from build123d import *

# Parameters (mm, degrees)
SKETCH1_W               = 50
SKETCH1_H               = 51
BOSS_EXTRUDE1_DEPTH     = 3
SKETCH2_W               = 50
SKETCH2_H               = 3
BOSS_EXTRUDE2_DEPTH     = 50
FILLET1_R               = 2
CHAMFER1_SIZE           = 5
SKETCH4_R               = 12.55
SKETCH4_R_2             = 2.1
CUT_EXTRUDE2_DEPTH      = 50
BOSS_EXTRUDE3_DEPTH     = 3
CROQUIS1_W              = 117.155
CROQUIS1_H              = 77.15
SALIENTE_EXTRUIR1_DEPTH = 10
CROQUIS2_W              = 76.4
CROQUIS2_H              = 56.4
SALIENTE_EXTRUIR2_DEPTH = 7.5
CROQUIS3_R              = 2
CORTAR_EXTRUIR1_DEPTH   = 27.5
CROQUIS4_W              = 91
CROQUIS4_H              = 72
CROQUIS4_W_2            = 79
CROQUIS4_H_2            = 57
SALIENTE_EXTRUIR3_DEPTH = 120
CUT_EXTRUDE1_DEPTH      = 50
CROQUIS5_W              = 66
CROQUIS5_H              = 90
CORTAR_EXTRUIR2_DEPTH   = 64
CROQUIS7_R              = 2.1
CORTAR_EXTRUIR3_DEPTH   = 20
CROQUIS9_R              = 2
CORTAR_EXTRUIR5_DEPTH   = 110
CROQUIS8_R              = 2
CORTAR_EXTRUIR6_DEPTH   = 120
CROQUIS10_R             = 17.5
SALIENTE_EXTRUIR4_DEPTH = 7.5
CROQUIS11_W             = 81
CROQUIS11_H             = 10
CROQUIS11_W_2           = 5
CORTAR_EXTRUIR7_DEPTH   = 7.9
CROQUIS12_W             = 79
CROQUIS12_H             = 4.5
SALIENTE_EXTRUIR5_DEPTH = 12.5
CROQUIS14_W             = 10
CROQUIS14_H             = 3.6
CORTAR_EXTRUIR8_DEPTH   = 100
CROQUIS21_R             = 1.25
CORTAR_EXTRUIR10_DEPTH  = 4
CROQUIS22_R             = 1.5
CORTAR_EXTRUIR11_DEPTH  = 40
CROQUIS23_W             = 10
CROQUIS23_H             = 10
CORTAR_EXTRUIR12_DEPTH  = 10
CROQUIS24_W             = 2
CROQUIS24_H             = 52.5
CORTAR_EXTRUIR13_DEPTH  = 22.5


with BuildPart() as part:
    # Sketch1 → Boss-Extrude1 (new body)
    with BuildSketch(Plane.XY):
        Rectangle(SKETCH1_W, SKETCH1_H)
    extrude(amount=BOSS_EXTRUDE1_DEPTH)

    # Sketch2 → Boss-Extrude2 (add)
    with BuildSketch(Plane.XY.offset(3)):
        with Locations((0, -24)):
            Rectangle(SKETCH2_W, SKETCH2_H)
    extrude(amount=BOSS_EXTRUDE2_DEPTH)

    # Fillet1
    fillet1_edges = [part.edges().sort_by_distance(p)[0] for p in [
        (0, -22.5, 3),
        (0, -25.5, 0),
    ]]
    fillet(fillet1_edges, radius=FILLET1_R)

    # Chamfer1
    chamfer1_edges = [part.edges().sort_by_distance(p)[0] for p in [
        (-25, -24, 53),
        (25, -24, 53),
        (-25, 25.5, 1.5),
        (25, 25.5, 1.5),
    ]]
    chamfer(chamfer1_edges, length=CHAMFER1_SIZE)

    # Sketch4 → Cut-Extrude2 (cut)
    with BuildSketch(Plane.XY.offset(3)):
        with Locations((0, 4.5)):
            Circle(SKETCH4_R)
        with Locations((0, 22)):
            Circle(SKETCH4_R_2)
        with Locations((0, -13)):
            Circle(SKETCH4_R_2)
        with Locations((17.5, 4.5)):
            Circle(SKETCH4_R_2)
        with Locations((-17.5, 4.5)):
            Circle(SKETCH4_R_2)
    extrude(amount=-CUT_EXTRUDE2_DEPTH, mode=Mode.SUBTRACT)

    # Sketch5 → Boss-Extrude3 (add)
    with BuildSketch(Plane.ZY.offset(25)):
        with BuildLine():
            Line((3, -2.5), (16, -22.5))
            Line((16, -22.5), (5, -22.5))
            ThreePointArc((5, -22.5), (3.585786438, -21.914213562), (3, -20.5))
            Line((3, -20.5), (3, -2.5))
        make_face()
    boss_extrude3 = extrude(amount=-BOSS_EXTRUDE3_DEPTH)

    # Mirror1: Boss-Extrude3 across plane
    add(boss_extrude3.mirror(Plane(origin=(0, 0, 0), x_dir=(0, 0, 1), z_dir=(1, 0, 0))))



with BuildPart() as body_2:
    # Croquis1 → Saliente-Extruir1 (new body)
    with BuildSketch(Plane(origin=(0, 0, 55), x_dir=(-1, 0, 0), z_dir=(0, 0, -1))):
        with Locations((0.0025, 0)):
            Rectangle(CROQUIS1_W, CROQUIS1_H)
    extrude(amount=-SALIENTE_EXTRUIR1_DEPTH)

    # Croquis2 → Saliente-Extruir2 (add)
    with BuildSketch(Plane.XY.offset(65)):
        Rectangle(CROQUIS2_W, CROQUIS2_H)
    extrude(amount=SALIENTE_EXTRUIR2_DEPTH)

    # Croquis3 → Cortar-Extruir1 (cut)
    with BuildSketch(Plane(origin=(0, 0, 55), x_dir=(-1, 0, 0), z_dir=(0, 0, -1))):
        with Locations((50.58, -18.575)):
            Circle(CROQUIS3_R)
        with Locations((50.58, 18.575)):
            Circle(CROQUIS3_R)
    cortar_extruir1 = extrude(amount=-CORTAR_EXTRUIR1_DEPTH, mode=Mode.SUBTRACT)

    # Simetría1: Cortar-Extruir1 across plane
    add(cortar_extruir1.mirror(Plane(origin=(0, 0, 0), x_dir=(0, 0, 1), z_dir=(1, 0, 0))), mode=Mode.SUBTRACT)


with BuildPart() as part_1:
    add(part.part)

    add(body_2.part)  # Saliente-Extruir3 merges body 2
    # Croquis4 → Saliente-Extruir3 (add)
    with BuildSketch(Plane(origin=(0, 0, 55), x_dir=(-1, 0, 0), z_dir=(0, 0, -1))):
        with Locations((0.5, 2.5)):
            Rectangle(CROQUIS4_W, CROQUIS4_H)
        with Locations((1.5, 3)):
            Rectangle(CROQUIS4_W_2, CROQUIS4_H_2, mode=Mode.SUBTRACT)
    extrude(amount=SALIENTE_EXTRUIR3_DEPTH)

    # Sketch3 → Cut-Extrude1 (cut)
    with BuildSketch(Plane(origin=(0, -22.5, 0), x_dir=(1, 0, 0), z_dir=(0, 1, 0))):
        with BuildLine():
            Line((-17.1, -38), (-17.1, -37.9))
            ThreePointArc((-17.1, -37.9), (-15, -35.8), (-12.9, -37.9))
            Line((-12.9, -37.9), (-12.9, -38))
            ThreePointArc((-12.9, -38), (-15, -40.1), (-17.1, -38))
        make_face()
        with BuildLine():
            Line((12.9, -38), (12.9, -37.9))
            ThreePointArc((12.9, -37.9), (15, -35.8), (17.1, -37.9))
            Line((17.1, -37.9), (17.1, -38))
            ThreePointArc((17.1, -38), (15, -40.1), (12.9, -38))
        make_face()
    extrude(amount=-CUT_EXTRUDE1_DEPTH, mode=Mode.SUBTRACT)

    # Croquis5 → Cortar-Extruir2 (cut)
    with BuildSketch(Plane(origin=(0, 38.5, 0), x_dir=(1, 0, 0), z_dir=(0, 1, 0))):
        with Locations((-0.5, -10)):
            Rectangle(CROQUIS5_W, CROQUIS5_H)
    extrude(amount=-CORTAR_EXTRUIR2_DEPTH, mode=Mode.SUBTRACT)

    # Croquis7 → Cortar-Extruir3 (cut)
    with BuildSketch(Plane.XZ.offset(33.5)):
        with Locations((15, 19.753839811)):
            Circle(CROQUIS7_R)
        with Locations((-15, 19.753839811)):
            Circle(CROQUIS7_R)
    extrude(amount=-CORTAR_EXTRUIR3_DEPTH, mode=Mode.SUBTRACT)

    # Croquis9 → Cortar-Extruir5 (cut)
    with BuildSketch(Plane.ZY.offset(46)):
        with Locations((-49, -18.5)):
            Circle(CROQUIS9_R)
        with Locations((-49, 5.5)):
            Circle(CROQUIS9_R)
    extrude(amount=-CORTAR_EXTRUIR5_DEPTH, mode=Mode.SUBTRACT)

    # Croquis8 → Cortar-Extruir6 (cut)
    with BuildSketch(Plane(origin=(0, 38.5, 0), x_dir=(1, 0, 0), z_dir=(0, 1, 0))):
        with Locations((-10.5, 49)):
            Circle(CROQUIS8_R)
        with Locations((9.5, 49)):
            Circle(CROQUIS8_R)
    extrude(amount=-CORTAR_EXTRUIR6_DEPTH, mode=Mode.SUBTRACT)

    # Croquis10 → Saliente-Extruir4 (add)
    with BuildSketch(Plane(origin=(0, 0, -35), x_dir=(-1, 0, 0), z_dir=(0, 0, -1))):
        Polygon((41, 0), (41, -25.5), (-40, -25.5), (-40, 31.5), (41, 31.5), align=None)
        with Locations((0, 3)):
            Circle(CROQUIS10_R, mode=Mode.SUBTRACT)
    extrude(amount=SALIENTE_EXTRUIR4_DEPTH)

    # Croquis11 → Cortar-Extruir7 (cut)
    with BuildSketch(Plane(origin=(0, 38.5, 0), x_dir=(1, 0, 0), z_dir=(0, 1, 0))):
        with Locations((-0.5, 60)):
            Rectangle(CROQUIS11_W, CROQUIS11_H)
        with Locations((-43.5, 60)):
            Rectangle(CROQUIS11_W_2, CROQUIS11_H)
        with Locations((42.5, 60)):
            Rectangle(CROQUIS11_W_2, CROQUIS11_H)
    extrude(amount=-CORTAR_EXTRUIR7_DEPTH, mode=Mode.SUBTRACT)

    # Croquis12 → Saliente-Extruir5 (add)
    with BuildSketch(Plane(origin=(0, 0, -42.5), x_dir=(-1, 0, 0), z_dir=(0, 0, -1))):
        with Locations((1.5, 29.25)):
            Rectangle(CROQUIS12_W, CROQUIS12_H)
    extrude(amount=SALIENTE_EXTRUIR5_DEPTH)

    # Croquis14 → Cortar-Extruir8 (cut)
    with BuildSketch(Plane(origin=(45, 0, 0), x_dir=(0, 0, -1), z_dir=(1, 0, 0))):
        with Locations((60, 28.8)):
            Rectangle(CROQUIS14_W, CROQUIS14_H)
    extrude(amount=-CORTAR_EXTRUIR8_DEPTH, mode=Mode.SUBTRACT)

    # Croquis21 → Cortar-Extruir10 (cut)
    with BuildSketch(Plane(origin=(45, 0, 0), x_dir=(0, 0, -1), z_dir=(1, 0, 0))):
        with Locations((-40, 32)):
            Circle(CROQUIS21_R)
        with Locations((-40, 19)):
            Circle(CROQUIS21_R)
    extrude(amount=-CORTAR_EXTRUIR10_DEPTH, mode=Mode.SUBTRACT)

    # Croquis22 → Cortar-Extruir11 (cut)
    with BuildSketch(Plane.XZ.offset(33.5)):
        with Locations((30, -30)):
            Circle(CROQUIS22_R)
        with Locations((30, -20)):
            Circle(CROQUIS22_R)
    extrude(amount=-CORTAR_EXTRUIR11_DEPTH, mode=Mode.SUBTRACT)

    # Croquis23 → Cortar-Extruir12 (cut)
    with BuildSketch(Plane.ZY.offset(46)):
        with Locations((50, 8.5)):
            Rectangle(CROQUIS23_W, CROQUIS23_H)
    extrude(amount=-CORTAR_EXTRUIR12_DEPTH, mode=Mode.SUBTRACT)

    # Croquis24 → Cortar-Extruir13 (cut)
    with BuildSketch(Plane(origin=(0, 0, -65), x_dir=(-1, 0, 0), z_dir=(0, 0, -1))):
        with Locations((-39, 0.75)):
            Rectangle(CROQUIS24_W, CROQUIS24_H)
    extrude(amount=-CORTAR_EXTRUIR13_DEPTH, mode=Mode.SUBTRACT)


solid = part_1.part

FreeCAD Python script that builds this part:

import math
import FreeCAD as App
import Part
import Sketcher
Q = App.Units.Quantity


def edges_at(feature, points):
    """Names of the edges that pass closest to the given points."""
    edges = feature.Shape.Edges
    near = lambda p: min(range(len(edges)), key=lambda i: edges[i].distToShape(Part.Vertex(*p))[0])
    return sorted({f"Edge{near(p) + 1}" for p in points})


def add_polygon(sketch, points):
    """Adds a closed chain of lines whose ends are joined by coincident constraints."""
    first, n = sketch.GeometryCount, len(points)
    for a, b in zip(points, points[1:] + points[:1]):
        sketch.addGeometry(Part.LineSegment(App.Vector(*a, 0), App.Vector(*b, 0)), False)
    for i in range(n):
        sketch.addConstraint(Sketcher.Constraint("Coincident", first + i, 2, first + (i + 1) % n, 1))

doc = App.newDocument("Part")
body = doc.addObject("PartDesign::Body", "Body")

sketch1 = body.newObject("Sketcher::SketchObject", "Sketch")
sketch1.AttachmentSupport = (doc.getObject("XY_Plane"), [""])
sketch1.MapMode = "FlatFace"
add_polygon(sketch1, [(-25, 26), (-25, -26), (25, -26), (25, 26)])
sketch1.addConstraint([
    Sketcher.Constraint("Vertical", 0),
    Sketcher.Constraint("Horizontal", 1),
    Sketcher.Constraint("Vertical", 2),
    Sketcher.Constraint("Horizontal", 3),
    Sketcher.Constraint("Symmetric", 0, 2, 2, 2, -1, 1),
    Sketcher.Constraint("DistanceX", 1, 1, 1, 2, Q("50 mm")),
    Sketcher.Constraint("DistanceY", 0, 2, 0, 1, Q("51 mm")),
])
pad1 = body.newObject("PartDesign::Pad", "Pad")
pad1.Profile = sketch1
pad1.Length = 3

sketch2 = body.newObject("Sketcher::SketchObject", "Sketch001")
sketch2.AttachmentSupport = (doc.getObject("XY_Plane"), [""])
sketch2.MapMode = "FlatFace"
sketch2.AttachmentOffset = App.Placement(App.Vector(0, 0, 3), App.Rotation())
add_polygon(sketch2, [(-25, -22.5), (-25, -25.5), (25, -25.5), (25, -22.5)])
sketch2.addConstraint([
    Sketcher.Constraint("Vertical", 0),
    Sketcher.Constraint("Horizontal", 1),
    Sketcher.Constraint("Vertical", 2),
    Sketcher.Constraint("Horizontal", 3),
    Sketcher.Constraint("DistanceX", 1, 1, 1, 2, Q("50 mm")),
    Sketcher.Constraint("DistanceY", 0, 2, 0, 1, Q("3 mm")),
    Sketcher.Constraint("DistanceX", 0, 2, -1, 1, Q("25 mm")),
    Sketcher.Constraint("DistanceY", 0, 2, -1, 1, Q("25.5 mm")),
])
pad2 = body.newObject("PartDesign::Pad", "Pad001")
pad2.Profile = sketch2
pad2.Length = 50
doc.recompute()

fillet = body.newObject("PartDesign::Fillet", "Fillet")
fillet.Base = (pad2, edges_at(pad2, [(0, -22.5, 3), (0, -25.5, 0)]))
fillet.Radius = 2
doc.recompute()

chamfer = body.newObject("PartDesign::Chamfer", "Chamfer")
chamfer.Base = (fillet, edges_at(fillet, [
    (-25, -24, 53),
    (25, -24, 53),
    (-25, 25.5, 1.5),
    (25, 25.5, 1.5),
]))
chamfer.Size = 5

sketch3 = body.newObject("Sketcher::SketchObject", "Sketch002")
sketch3.AttachmentSupport = (doc.getObject("XY_Plane"), [""])
sketch3.MapMode = "FlatFace"
sketch3.AttachmentOffset = App.Placement(App.Vector(0, 0, 3), App.Rotation())
sketch3.addGeometry([
    Part.Circle(App.Vector(0, 4.5, 0), App.Vector(0, 0, 1), 12.6),
    Part.Circle(App.Vector(0, 22, 0), App.Vector(0, 0, 1), 2.1),
    Part.Circle(App.Vector(0, -13, 0), App.Vector(0, 0, 1), 2.1),
    Part.Circle(App.Vector(17.5, 4.5, 0), App.Vector(0, 0, 1), 2.1),
    Part.Circle(App.Vector(-17.5, 4.5, 0), App.Vector(0, 0, 1), 2.1),
], False)
sketch3.addConstraint([
    Sketcher.Constraint("Equal", 1, 2),
    Sketcher.Constraint("Equal", 2, 3),
    Sketcher.Constraint("Equal", 3, 4),
    Sketcher.Constraint("Symmetric", 3, 3, 4, 3, -2),
    Sketcher.Constraint("PointOnObject", 0, 3, -2),
    Sketcher.Constraint("PointOnObject", 1, 3, -2),
    Sketcher.Constraint("PointOnObject", 2, 3, -2),
    Sketcher.Constraint("Horizontal", 0, 3, 3, 3),
    Sketcher.Constraint("Diameter", 0, Q("25.1 mm")),
    Sketcher.Constraint("Diameter", 1, Q("4.2 mm")),
    Sketcher.Constraint("DistanceY", -1, 1, 1, 3, Q("22 mm")),
    Sketcher.Constraint("DistanceY", 2, 3, -1, 1, Q("13 mm")),
    Sketcher.Constraint("DistanceX", 4, 3, 3, 3, Q("35 mm")),
    Sketcher.Constraint("DistanceY", -1, 1, 0, 3, Q("4.5 mm")),
])
pocket1 = body.newObject("PartDesign::Pocket", "Pocket")
pocket1.Profile = sketch3
pocket1.Length = 50

sketch4 = body.newObject("Sketcher::SketchObject", "Sketch003")
sketch4.AttachmentSupport = (doc.getObject("YZ_Plane"), [""])
sketch4.MapMode = "FlatFace"
sketch4.AttachmentOffset = App.Placement(App.Vector(0, 0, -25), App.Rotation())
sketch4.addGeometry([
    Part.LineSegment(App.Vector(-22.5, 16, 0), App.Vector(-2.5, 3, 0)),
    Part.LineSegment(App.Vector(-2.5, 3, 0), App.Vector(-20.5, 3, 0)),
    Part.ArcOfCircle(Part.Circle(App.Vector(-20.5, 5, 0), App.Vector(0, 0, 1), 2), math.radians(-180), math.radians(-90)),
    Part.LineSegment(App.Vector(-22.5, 5, 0), App.Vector(-22.5, 16, 0)),
], False)
sketch4.addConstraint([
    Sketcher.Constraint("Coincident", 0, 2, 1, 1),
    Sketcher.Constraint("Tangent", 1, 2, 2, 2),
    Sketcher.Constraint("Tangent", 2, 1, 3, 1),
    Sketcher.Constraint("Coincident", 3, 2, 0, 1),
    Sketcher.Constraint("Horizontal", 1),
    Sketcher.Constraint("Vertical", 3),
    Sketcher.Constraint("Radius", 2, Q("2 mm")),
    Sketcher.Constraint("DistanceX", 1, 2, 1, 1, Q("18 mm")),
    Sketcher.Constraint("DistanceY", 3, 1, 3, 2, Q("11 mm")),
    Sketcher.Constraint("DistanceY", -1, 1, 2, 3, Q("5 mm")),
    Sketcher.Constraint("DistanceX", 2, 3, -1, 1, Q("20.5 mm")),
])
pad3 = body.newObject("PartDesign::Pad", "Pad002")
pad3.Profile = sketch4
pad3.Length = 3
doc.recompute()

mirrored = body.newObject("PartDesign::Mirrored", "Mirrored")
mirrored.Originals = [pad3]
mirrored.MirrorPlane = (doc.getObject("YZ_Plane"), [""])
body.Tip = mirrored
body2 = doc.addObject("PartDesign::Body", "Body001")

sketch5 = body2.newObject("Sketcher::SketchObject", "Sketch004")
sketch5.AttachmentSupport = (doc.getObject("XY_Plane001"), [""])
sketch5.MapMode = "FlatFace"
sketch5.AttachmentOffset = App.Placement(App.Vector(0, 0, 55), App.Rotation())
add_polygon(sketch5, [(59, 39), (59, -39), (-59, -39), (-59, 39)])
sketch5.addConstraint([
    Sketcher.Constraint("Vertical", 0),
    Sketcher.Constraint("Horizontal", 1),
    Sketcher.Constraint("Vertical", 2),
    Sketcher.Constraint("Horizontal", 3),
    Sketcher.Constraint("DistanceY", 0, 2, 0, 1, Q("77.15 mm")),
    Sketcher.Constraint("DistanceX", 1, 2, 1, 1, Q("117.155 mm")),
    Sketcher.Constraint("DistanceX", 1, 2, -1, 1, Q("58.58 mm")),
    Sketcher.Constraint("DistanceY", 0, 2, -1, 1, Q("38.575 mm")),
])
pad4 = body2.newObject("PartDesign::Pad", "Pad003")
pad4.Profile = sketch5
pad4.Length = 10

sketch6 = body2.newObject("Sketcher::SketchObject", "Sketch005")
sketch6.AttachmentSupport = (doc.getObject("XY_Plane001"), [""])
sketch6.MapMode = "FlatFace"
sketch6.AttachmentOffset = App.Placement(App.Vector(0, 0, 65), App.Rotation())
add_polygon(sketch6, [(-38, 28), (-38, -28), (38, -28), (38, 28)])
sketch6.addConstraint([
    Sketcher.Constraint("Vertical", 0),
    Sketcher.Constraint("Horizontal", 1),
    Sketcher.Constraint("Vertical", 2),
    Sketcher.Constraint("Horizontal", 3),
    Sketcher.Constraint("Symmetric", 0, 2, 2, 2, -1, 1),
    Sketcher.Constraint("DistanceX", 1, 1, 1, 2, Q("76.4 mm")),
    Sketcher.Constraint("DistanceY", 0, 2, 0, 1, Q("56.4 mm")),
])
pad5 = body2.newObject("PartDesign::Pad", "Pad004")
pad5.Profile = sketch6
pad5.Length = 7.5

sketch7 = body2.newObject("Sketcher::SketchObject", "Sketch006")
sketch7.AttachmentSupport = (doc.getObject("XY_Plane001"), [""])
sketch7.MapMode = "FlatFace"
sketch7.AttachmentOffset = App.Placement(App.Vector(0, 0, 55), App.Rotation())
sketch7.addGeometry([
    Part.Circle(App.Vector(-50.6, -18.6, 0), App.Vector(0, 0, 1), 2),
    Part.Circle(App.Vector(-50.6, 18.6, 0), App.Vector(0, 0, 1), 2),
], False)
sketch7.addConstraint([
    Sketcher.Constraint("Equal", 0, 1),
    Sketcher.Constraint("Symmetric", 0, 3, 1, 3, -1),
    Sketcher.Constraint("Diameter", 0, Q("4 mm")),
    Sketcher.Constraint("DistanceX", 0, 3, -1, 1, Q("50.58 mm")),
    Sketcher.Constraint("DistanceY", 0, 3, 1, 3, Q("37.15 mm")),
])
pocket2 = body2.newObject("PartDesign::Pocket", "Pocket001")
pocket2.Profile = sketch7
pocket2.Length = 27.5
pocket2.Reversed = True
doc.recompute()

mirrored2 = body2.newObject("PartDesign::Mirrored", "Mirrored001")
mirrored2.Originals = [pocket2]
mirrored2.MirrorPlane = (doc.getObject("YZ_Plane001"), [""])
body2.Tip = mirrored2
body.AllowCompound = True
doc.recompute()

boolean = body.newObject("PartDesign::Boolean", "Boolean")
boolean.Type = "Fuse"
boolean.addObjects([body2])

sketch8 = body.newObject("Sketcher::SketchObject", "Sketch007")
sketch8.AttachmentSupport = (doc.getObject("XY_Plane"), [""])
sketch8.MapMode = "FlatFace"
sketch8.AttachmentOffset = App.Placement(App.Vector(0, 0, 55), App.Rotation())
add_polygon(sketch8, [(45, 38), (45, -34), (-46, -34), (-46, 38)])
add_polygon(sketch8, [(-41, -26), (38, -26), (38, 32), (-41, 32)])
sketch8.addConstraint([
    Sketcher.Constraint("Vertical", 0),
    Sketcher.Constraint("Horizontal", 1),
    Sketcher.Constraint("Vertical", 2),
    Sketcher.Constraint("Horizontal", 3),
    Sketcher.Constraint("Horizontal", 4),
    Sketcher.Constraint("Vertical", 5),
    Sketcher.Constraint("Horizontal", 6),
    Sketcher.Constraint("Vertical", 7),
    Sketcher.Constraint("DistanceX", 1, 2, 1, 1, Q("91 mm")),
    Sketcher.Constraint("DistanceX", 4, 1, 4, 2, Q("79 mm")),
    Sketcher.Constraint("DistanceY", 0, 2, 0, 1, Q("72 mm")),
    Sketcher.Constraint("DistanceY", 5, 1, 5, 2, Q("57 mm")),
    Sketcher.Constraint("DistanceX", -1, 1, 0, 2, Q("45 mm")),
    Sketcher.Constraint("DistanceX", -1, 1, 4, 2, Q("38 mm")),
    Sketcher.Constraint("DistanceY", 0, 2, 4, 2, Q("8 mm")),
    Sketcher.Constraint("DistanceY", 0, 2, -1, 1, Q("33.5 mm")),
])
pad6 = body.newObject("PartDesign::Pad", "Pad005")
pad6.Profile = sketch8
pad6.Length = 120
pad6.Reversed = True

sketch9 = body.newObject("Sketcher::SketchObject", "Sketch008")
sketch9.AttachmentSupport = (doc.getObject("XZ_Plane"), [""])
sketch9.MapMode = "FlatFace"
sketch9.AttachmentOffset = App.Placement(App.Vector(0, 0, 22.5), App.Rotation())
sketch9.addGeometry([
    Part.LineSegment(App.Vector(-17.1, 37.9, 0), App.Vector(-17.1, 38, 0)),
    Part.ArcOfCircle(Part.Circle(App.Vector(-15, 38, 0), App.Vector(0, 0, 1), 2.1), math.radians(0), math.radians(180)),
    Part.LineSegment(App.Vector(-12.9, 38, 0), App.Vector(-12.9, 37.9, 0)),
    Part.ArcOfCircle(Part.Circle(App.Vector(-15, 37.9, 0), App.Vector(0, 0, 1), 2.1), math.radians(180), math.radians(360)),
    Part.LineSegment(App.Vector(12.9, 37.9, 0), App.Vector(12.9, 38, 0)),
    Part.ArcOfCircle(Part.Circle(App.Vector(15, 38, 0), App.Vector(0, 0, 1), 2.1), math.radians(0), math.radians(180)),
    Part.LineSegment(App.Vector(17.1, 38, 0), App.Vector(17.1, 37.9, 0)),
    Part.ArcOfCircle(Part.Circle(App.Vector(15, 37.9, 0), App.Vector(0, 0, 1), 2.1), math.radians(180), math.radians(360)),
], False)
sketch9.addConstraint([
    Sketcher.Constraint("Tangent", 0, 2, 1, 2),
    Sketcher.Constraint("Tangent", 1, 1, 2, 1),
    Sketcher.Constraint("Tangent", 2, 2, 3, 2),
    Sketcher.Constraint("Tangent", 3, 1, 0, 1),
    Sketcher.Constraint("Tangent", 4, 2, 5, 2),
    Sketcher.Constraint("Tangent", 5, 1, 6, 1),
    Sketcher.Constraint("Tangent", 6, 2, 7, 2),
    Sketcher.Constraint("Tangent", 7, 1, 4, 1),
    Sketcher.Constraint("Vertical", 0),
    Sketcher.Constraint("Vertical", 2),
    Sketcher.Constraint("Vertical", 4),
    Sketcher.Constraint("Vertical", 6),
    Sketcher.Constraint("Equal", 3, 5),
    Sketcher.Constraint("Symmetric", 1, 3, 5, 3, -2),
    Sketcher.Constraint("Horizontal", 3, 3, 7, 3),
    Sketcher.Constraint("Radius", 1, Q("2.1 mm")),
    Sketcher.Constraint("DistanceY", 0, 1, 0, 2, Q("0.1 mm")),
    Sketcher.Constraint("DistanceX", 1, 3, -1, 1, Q("15 mm")),
    Sketcher.Constraint("DistanceY", -1, 1, 1, 3, Q("38 mm")),
])
pocket3 = body.newObject("PartDesign::Pocket", "Pocket002")
pocket3.Profile = sketch9
pocket3.Length = 50
pocket3.Reversed = True

sketch10 = body.newObject("Sketcher::SketchObject", "Sketch009")
sketch10.AttachmentSupport = (doc.getObject("XZ_Plane"), [""])
sketch10.MapMode = "FlatFace"
sketch10.AttachmentOffset = App.Placement(App.Vector(0, 0, -38.5), App.Rotation())
add_polygon(sketch10, [(-34, -35), (-34, 55), (32, 55), (32, -35)])
sketch10.addConstraint([
    Sketcher.Constraint("Vertical", 0),
    Sketcher.Constraint("Horizontal", 1),
    Sketcher.Constraint("Vertical", 2),
    Sketcher.Constraint("Horizontal", 3),
    Sketcher.Constraint("DistanceX", 1, 1, 1, 2, Q("66 mm")),
    Sketcher.Constraint("DistanceY", 0, 1, 0, 2, Q("90 mm")),
    Sketcher.Constraint("DistanceY", -1, 1, 0, 2, Q("55 mm")),
    Sketcher.Constraint("DistanceX", 0, 2, -1, 1, Q("33.5 mm")),
])
pocket4 = body.newObject("PartDesign::Pocket", "Pocket003")
pocket4.Profile = sketch10
pocket4.Length = 64
pocket4.Reversed = True

sketch11 = body.newObject("Sketcher::SketchObject", "Sketch010")
sketch11.AttachmentSupport = (doc.getObject("XZ_Plane"), [""])
sketch11.MapMode = "FlatFace"
sketch11.AttachmentOffset = App.Placement(App.Vector(0, 0, 33.5), App.Rotation())
sketch11.addGeometry([
    Part.Circle(App.Vector(15, 19.8, 0), App.Vector(0, 0, 1), 2.1),
    Part.Circle(App.Vector(-15, 19.8, 0), App.Vector(0, 0, 1), 2.1),
], False)
sketch11.addConstraint([
    Sketcher.Constraint("Equal", 0, 1),
    Sketcher.Constraint("Symmetric", 0, 3, 1, 3, -2),
    Sketcher.Constraint("Diameter", 0, Q("4.2 mm")),
    Sketcher.Constraint("DistanceX", -1, 1, 0, 3, Q("15 mm")),
    Sketcher.Constraint("DistanceY", -1, 1, 0, 3, Q("19.75384 mm")),
])
pocket5 = body.newObject("PartDesign::Pocket", "Pocket004")
pocket5.Profile = sketch11
pocket5.Length = 20

sketch12 = body.newObject("Sketcher::SketchObject", "Sketch011")
sketch12.AttachmentSupport = (doc.getObject("YZ_Plane"), [""])
sketch12.MapMode = "FlatFace"
sketch12.AttachmentOffset = App.Placement(App.Vector(0, 0, -46), App.Rotation())
sketch12.addGeometry([
    Part.Circle(App.Vector(-18.5, -49, 0), App.Vector(0, 0, 1), 2),
    Part.Circle(App.Vector(5.5, -49, 0), App.Vector(0, 0, 1), 2),
], False)
sketch12.addConstraint([
    Sketcher.Constraint("Equal", 0, 1),
    Sketcher.Constraint("Horizontal", 0, 3, 1, 3),
    Sketcher.Constraint("Diameter", 0, Q("4 mm")),
    Sketcher.Constraint("DistanceY", 0, 3, -1, 1, Q("49 mm")),
    Sketcher.Constraint("DistanceX", 0, 3, 1, 3, Q("24 mm")),
    Sketcher.Constraint("DistanceX", 0, 3, -1, 1, Q("18.5 mm")),
])
pocket6 = body.newObject("PartDesign::Pocket", "Pocket005")
pocket6.Profile = sketch12
pocket6.Length = 110
pocket6.Reversed = True

sketch13 = body.newObject("Sketcher::SketchObject", "Sketch012")
sketch13.AttachmentSupport = (doc.getObject("XZ_Plane"), [""])
sketch13.MapMode = "FlatFace"
sketch13.AttachmentOffset = App.Placement(App.Vector(0, 0, -38.5), App.Rotation())
sketch13.addGeometry([
    Part.Circle(App.Vector(-10.5, -49, 0), App.Vector(0, 0, 1), 2),
    Part.Circle(App.Vector(9.5, -49, 0), App.Vector(0, 0, 1), 2),
], False)
sketch13.addConstraint([
    Sketcher.Constraint("Equal", 0, 1),
    Sketcher.Constraint("Horizontal", 0, 3, 1, 3),
    Sketcher.Constraint("Diameter", 0, Q("4 mm")),
    Sketcher.Constraint("DistanceY", 0, 3, -1, 1, Q("49 mm")),
    Sketcher.Constraint("DistanceX", 0, 3, 1, 3, Q("20 mm")),
    Sketcher.Constraint("DistanceX", 0, 3, -1, 1, Q("10.5 mm")),
])
pocket7 = body.newObject("PartDesign::Pocket", "Pocket006")
pocket7.Profile = sketch13
pocket7.Length = 120
pocket7.Reversed = True

sketch14 = body.newObject("Sketcher::SketchObject", "Sketch013")
sketch14.AttachmentSupport = (doc.getObject("XY_Plane"), [""])
sketch14.MapMode = "FlatFace"
sketch14.AttachmentOffset = App.Placement(App.Vector(0, 0, -35), App.Rotation())
add_polygon(sketch14, [(-41, -26), (-41, 32), (40, 32), (40, -26)])
sketch14.addGeometry(Part.Circle(App.Vector(0, 3, 0), App.Vector(0, 0, 1), 18), False)
sketch14.addConstraint([
    Sketcher.Constraint("Vertical", 0),
    Sketcher.Constraint("Horizontal", 1),
    Sketcher.Constraint("Vertical", 2),
    Sketcher.Constraint("Horizontal", 3),
    Sketcher.Constraint("PointOnObject", 4, 3, -2),
    Sketcher.Constraint("Diameter", 4, Q("35 mm")),
    Sketcher.Constraint("DistanceX", 1, 1, 1, 2, Q("81 mm")),
    Sketcher.Constraint("DistanceY", 0, 1, 0, 2, Q("57 mm")),
    Sketcher.Constraint("DistanceY", -1, 1, 4, 3, Q("3 mm")),
    Sketcher.Constraint("DistanceX", 0, 2, -1, 1, Q("41 mm")),
    Sketcher.Constraint("DistanceY", -1, 1, 0, 2, Q("31.5 mm")),
])
pad7 = body.newObject("PartDesign::Pad", "Pad006")
pad7.Profile = sketch14
pad7.Length = 7.5
pad7.Reversed = True

sketch15 = body.newObject("Sketcher::SketchObject", "Sketch014")
sketch15.AttachmentSupport = (doc.getObject("XZ_Plane"), [""])
sketch15.MapMode = "FlatFace"
sketch15.AttachmentOffset = App.Placement(App.Vector(0, 0, -38.5), App.Rotation())
add_polygon(sketch15, [(-46, -65), (-46, -55), (45, -55), (45, -65)])
sketch15.addConstraint([
    Sketcher.Constraint("Vertical", 0),
    Sketcher.Constraint("Horizontal", 1),
    Sketcher.Constraint("Vertical", 2),
    Sketcher.Constraint("Horizontal", 3),
    Sketcher.Constraint("DistanceX", 1, 1, 1, 2, Q("91 mm")),
    Sketcher.Constraint("DistanceY", 0, 1, 0, 2, Q("10 mm")),
    Sketcher.Constraint("DistanceX", 0, 2, -1, 1, Q("46 mm")),
    Sketcher.Constraint("DistanceY", 0, 2, -1, 1, Q("55 mm")),
])
pocket8 = body.newObject("PartDesign::Pocket", "Pocket007")
pocket8.Profile = sketch15
pocket8.Length = 7.9
pocket8.Reversed = True

sketch16 = body.newObject("Sketcher::SketchObject", "Sketch015")
sketch16.AttachmentSupport = (doc.getObject("XY_Plane"), [""])
sketch16.MapMode = "FlatFace"
sketch16.AttachmentOffset = App.Placement(App.Vector(0, 0, -42.5), App.Rotation())
add_polygon(sketch16, [(38, 31.5), (38, 27), (-41, 27), (-41, 31.5)])
sketch16.addConstraint([
    Sketcher.Constraint("Vertical", 0),
    Sketcher.Constraint("Horizontal", 1),
    Sketcher.Constraint("Vertical", 2),
    Sketcher.Constraint("Horizontal", 3),
    Sketcher.Constraint("DistanceX", 1, 2, 1, 1, Q("79 mm")),
    Sketcher.Constraint("DistanceY", 0, 2, 0, 1, Q("4.5 mm")),
    Sketcher.Constraint("DistanceX", -1, 1, 0, 2, Q("38 mm")),
    Sketcher.Constraint("DistanceY", -1, 1, 0, 2, Q("27 mm")),
])
pad8 = body.newObject("PartDesign::Pad", "Pad007")
pad8.Profile = sketch16
pad8.Length = 12.5
pad8.Reversed = True

sketch17 = body.newObject("Sketcher::SketchObject", "Sketch016")
sketch17.AttachmentSupport = (doc.getObject("YZ_Plane"), [""])
sketch17.MapMode = "FlatFace"
sketch17.AttachmentOffset = App.Placement(App.Vector(0, 0, 45), App.Rotation())
add_polygon(sketch17, [(30.6, -55), (27, -55), (27, -65), (30.6, -65)])
sketch17.addConstraint([
    Sketcher.Constraint("Horizontal", 0),
    Sketcher.Constraint("Vertical", 1),
    Sketcher.Constraint("Horizontal", 2),
    Sketcher.Constraint("Vertical", 3),
    Sketcher.Constraint("DistanceY", 1, 2, 1, 1, Q("10 mm")),
    Sketcher.Constraint("DistanceX", 0, 2, 0, 1, Q("3.6 mm")),
    Sketcher.Constraint("DistanceX", -1, 1, 0, 2, Q("27 mm")),
    Sketcher.Constraint("DistanceY", 0, 2, -1, 1, Q("55 mm")),
])
pocket9 = body.newObject("PartDesign::Pocket", "Pocket008")
pocket9.Profile = sketch17
pocket9.Length = 100

sketch18 = body.newObject("Sketcher::SketchObject", "Sketch017")
sketch18.AttachmentSupport = (doc.getObject("YZ_Plane"), [""])
sketch18.MapMode = "FlatFace"
sketch18.AttachmentOffset = App.Placement(App.Vector(0, 0, 45), App.Rotation())
sketch18.addGeometry([
    Part.Circle(App.Vector(32, 40, 0), App.Vector(0, 0, 1), 1.2),
    Part.Circle(App.Vector(19, 40, 0), App.Vector(0, 0, 1), 1.2),
], False)
sketch18.addConstraint([
    Sketcher.Constraint("Equal", 0, 1),
    Sketcher.Constraint("Horizontal", 0, 3, 1, 3),
    Sketcher.Constraint("Diameter", 0, Q("2.5 mm")),
    Sketcher.Constraint("DistanceX", -1, 1, 0, 3, Q("32 mm")),
    Sketcher.Constraint("DistanceY", -1, 1, 0, 3, Q("40 mm")),
    Sketcher.Constraint("DistanceX", -1, 1, 1, 3, Q("19 mm")),
])
pocket10 = body.newObject("PartDesign::Pocket", "Pocket009")
pocket10.Profile = sketch18
pocket10.Length = 4

sketch19 = body.newObject("Sketcher::SketchObject", "Sketch018")
sketch19.AttachmentSupport = (doc.getObject("XZ_Plane"), [""])
sketch19.MapMode = "FlatFace"
sketch19.AttachmentOffset = App.Placement(App.Vector(0, 0, 33.5), App.Rotation())
sketch19.addGeometry([
    Part.Circle(App.Vector(30, -30, 0), App.Vector(0, 0, 1), 1.5),
    Part.Circle(App.Vector(30, -20, 0), App.Vector(0, 0, 1), 1.5),
], False)
sketch19.addConstraint([
    Sketcher.Constraint("Equal", 0, 1),
    Sketcher.Constraint("Vertical", 0, 3, 1, 3),
    Sketcher.Constraint("Diameter", 0, Q("3 mm")),
    Sketcher.Constraint("DistanceX", -1, 1, 0, 3, Q("30 mm")),
    Sketcher.Constraint("DistanceY", 0, 3, -1, 1, Q("30 mm")),
    Sketcher.Constraint("DistanceY", 1, 3, -1, 1, Q("20 mm")),
])
pocket11 = body.newObject("PartDesign::Pocket", "Pocket010")
pocket11.Profile = sketch19
pocket11.Length = 40

sketch20 = body.newObject("Sketcher::SketchObject", "Sketch019")
sketch20.AttachmentSupport = (doc.getObject("YZ_Plane"), [""])
sketch20.MapMode = "FlatFace"
sketch20.AttachmentOffset = App.Placement(App.Vector(0, 0, -46), App.Rotation())
add_polygon(sketch20, [(14, 45), (4, 45), (4, 55), (14, 55)])
sketch20.addConstraint([
    Sketcher.Constraint("Horizontal", 0),
    Sketcher.Constraint("Vertical", 1),
    Sketcher.Constraint("Horizontal", 2),
    Sketcher.Constraint("Vertical", 3),
    Sketcher.Constraint("Equal", 2, 1),
    Sketcher.Constraint("DistanceX", 0, 2, 0, 1, Q("10 mm")),
    Sketcher.Constraint("DistanceY", -1, 1, 0, 2, Q("45 mm")),
    Sketcher.Constraint("DistanceX", -1, 1, 0, 2, Q("3.5 mm")),
])
pocket12 = body.newObject("PartDesign::Pocket", "Pocket011")
pocket12.Profile = sketch20
pocket12.Length = 10
pocket12.Reversed = True

sketch21 = body.newObject("Sketcher::SketchObject", "Sketch020")
sketch21.AttachmentSupport = (doc.getObject("XY_Plane"), [""])
sketch21.MapMode = "FlatFace"
sketch21.AttachmentOffset = App.Placement(App.Vector(0, 0, -65), App.Rotation())
add_polygon(sketch21, [(40, 27), (40, -25.5), (38, -25.5), (38, 27)])
sketch21.addConstraint([
    Sketcher.Constraint("Vertical", 0),
    Sketcher.Constraint("Horizontal", 1),
    Sketcher.Constraint("Vertical", 2),
    Sketcher.Constraint("Horizontal", 3),
    Sketcher.Constraint("DistanceX", 1, 2, 1, 1, Q("2 mm")),
    Sketcher.Constraint("DistanceY", 0, 2, 0, 1, Q("52.5 mm")),
    Sketcher.Constraint("DistanceX", -1, 1, 0, 2, Q("40 mm")),
    Sketcher.Constraint("DistanceY", -1, 1, 2, 2, Q("27 mm")),
])
pocket13 = body.newObject("PartDesign::Pocket", "Pocket012")
pocket13.Profile = sketch21
pocket13.Length = 22.5
pocket13.Reversed = True

doc.recompute()
